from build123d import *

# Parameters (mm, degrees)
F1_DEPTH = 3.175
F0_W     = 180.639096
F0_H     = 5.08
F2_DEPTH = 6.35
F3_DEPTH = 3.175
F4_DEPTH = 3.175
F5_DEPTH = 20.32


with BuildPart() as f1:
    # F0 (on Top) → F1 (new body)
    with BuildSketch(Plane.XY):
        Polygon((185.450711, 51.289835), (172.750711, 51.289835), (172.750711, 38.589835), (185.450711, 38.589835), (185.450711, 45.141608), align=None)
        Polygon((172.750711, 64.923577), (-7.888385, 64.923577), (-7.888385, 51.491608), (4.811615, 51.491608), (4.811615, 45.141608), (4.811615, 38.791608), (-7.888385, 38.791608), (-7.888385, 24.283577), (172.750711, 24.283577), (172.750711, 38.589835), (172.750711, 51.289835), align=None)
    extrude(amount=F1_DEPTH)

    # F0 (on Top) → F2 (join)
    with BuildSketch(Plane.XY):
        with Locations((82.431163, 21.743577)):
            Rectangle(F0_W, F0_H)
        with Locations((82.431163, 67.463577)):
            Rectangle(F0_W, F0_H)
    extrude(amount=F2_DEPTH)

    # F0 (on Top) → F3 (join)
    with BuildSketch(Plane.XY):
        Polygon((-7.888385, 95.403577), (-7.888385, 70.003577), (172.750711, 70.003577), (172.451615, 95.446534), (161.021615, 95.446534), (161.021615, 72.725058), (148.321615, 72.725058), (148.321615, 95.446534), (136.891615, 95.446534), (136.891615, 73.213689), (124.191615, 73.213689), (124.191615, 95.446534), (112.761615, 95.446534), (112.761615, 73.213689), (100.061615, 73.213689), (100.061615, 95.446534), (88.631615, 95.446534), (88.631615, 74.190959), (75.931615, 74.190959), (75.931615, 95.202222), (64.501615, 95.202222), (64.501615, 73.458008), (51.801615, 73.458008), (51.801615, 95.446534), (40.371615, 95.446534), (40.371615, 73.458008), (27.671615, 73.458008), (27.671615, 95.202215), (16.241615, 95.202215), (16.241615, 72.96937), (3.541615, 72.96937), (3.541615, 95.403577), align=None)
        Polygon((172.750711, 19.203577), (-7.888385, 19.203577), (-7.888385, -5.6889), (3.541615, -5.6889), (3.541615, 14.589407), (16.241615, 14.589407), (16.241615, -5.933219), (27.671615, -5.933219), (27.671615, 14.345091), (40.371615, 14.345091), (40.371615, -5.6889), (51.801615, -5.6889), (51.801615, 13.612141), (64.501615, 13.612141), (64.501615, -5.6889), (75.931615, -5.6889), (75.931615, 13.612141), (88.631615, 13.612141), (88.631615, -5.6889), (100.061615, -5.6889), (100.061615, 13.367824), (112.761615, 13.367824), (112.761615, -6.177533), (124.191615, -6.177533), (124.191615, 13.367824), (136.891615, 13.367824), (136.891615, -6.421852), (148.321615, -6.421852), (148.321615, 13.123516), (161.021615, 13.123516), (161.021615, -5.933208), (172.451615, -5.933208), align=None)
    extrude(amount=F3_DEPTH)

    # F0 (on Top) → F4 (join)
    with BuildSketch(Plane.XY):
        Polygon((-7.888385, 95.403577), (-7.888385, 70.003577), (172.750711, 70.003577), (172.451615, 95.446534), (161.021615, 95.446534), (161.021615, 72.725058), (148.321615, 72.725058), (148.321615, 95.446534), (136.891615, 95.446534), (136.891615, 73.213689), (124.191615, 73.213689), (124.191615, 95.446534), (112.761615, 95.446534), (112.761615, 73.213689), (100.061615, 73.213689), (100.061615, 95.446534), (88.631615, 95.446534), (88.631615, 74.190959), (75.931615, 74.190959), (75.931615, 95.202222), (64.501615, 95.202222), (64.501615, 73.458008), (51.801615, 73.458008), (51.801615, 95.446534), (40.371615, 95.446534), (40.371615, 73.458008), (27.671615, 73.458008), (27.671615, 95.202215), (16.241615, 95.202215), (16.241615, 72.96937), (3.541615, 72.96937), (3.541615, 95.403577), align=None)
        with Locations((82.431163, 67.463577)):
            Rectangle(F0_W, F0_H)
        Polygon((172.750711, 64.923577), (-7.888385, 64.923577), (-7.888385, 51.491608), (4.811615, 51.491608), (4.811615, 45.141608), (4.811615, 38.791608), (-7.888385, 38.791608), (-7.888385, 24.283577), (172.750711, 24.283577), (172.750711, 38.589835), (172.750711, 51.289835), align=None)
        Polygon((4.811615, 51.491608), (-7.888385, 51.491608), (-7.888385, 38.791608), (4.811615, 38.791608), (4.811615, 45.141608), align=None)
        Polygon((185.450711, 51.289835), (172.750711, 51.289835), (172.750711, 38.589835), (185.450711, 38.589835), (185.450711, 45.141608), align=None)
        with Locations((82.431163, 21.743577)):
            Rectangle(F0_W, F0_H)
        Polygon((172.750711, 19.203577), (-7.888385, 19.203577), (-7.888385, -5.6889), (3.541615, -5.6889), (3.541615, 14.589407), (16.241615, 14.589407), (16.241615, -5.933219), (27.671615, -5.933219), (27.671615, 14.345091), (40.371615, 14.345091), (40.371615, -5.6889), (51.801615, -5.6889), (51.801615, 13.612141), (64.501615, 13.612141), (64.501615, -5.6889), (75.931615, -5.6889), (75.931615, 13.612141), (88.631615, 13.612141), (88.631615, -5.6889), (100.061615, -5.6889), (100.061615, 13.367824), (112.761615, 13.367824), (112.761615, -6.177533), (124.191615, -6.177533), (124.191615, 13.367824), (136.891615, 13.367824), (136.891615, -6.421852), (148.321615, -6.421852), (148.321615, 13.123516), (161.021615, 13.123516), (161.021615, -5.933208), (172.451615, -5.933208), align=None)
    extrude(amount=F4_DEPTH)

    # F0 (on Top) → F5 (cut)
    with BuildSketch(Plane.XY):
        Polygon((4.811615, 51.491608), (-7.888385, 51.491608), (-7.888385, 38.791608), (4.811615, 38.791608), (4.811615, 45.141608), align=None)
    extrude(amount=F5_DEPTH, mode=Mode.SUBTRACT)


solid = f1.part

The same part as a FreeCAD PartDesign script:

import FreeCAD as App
import Part
import Sketcher
from FreeCAD import Vector
Q = App.Units.Quantity


def add_polygon(sketch, points):
    """Adds a closed chain of lines whose ends are joined by coincident constraints."""
    first, n = sketch.GeometryCount, len(points)
    for a, b in zip(points, points[1:] + points[:1]):
        sketch.addGeometry(Part.LineSegment(App.Vector(*a, 0), App.Vector(*b, 0)), False)
    for i in range(n):
        sketch.addConstraint(Sketcher.Constraint("Coincident", first + i, 2, first + (i + 1) % n, 1))

doc = App.newDocument("Part")
body = doc.addObject("PartDesign::Body", "Body")

sketch1 = doc.addObject("Sketcher::SketchObject", "Sketch")
body.addObject(sketch1)
sketch1.AttachmentSupport = (doc.XY_Plane, [""])
sketch1.MapMode = "FlatFace"
add_polygon(sketch1, [(185, 51), (173, 51), (173, 65), (-8, 65), (-8, 51), (5, 51), (5, 39), (-8, 39), (-8, 24), (173, 24), (173, 39), (185, 39)])
sketch1.addConstraint([
    Sketcher.Constraint("Horizontal", 0),
    Sketcher.Constraint("Vertical", 1),
    Sketcher.Constraint("Horizontal", 2),
    Sketcher.Constraint("Vertical", 3),
    Sketcher.Constraint("Horizontal", 4),
    Sketcher.Constraint("Vertical", 5),
    Sketcher.Constraint("Horizontal", 6),
    Sketcher.Constraint("Vertical", 7),
    Sketcher.Constraint("Horizontal", 8),
    Sketcher.Constraint("Vertical", 9),
    Sketcher.Constraint("Horizontal", 10),
    Sketcher.Constraint("Vertical", 11),
    Sketcher.Constraint("Vertical", 3, 2, 6, 2),
    Sketcher.Constraint("Vertical", 1, 2, 8, 2),
    Sketcher.Constraint("Equal", 0, 4),
    Sketcher.Constraint("Equal", 10, 5),
    Sketcher.Constraint("Equal", 5, 11),
    Sketcher.Constraint("DistanceX", 0, 2, 0, 1, Q("0.5 in")),
    Sketcher.Constraint("DistanceY", 7, 2, 2, 2, Q("1.6 in")),
    Sketcher.Constraint("DistanceY", 1, 1, 1, 2, 13.633742),
    Sketcher.Constraint("DistanceY", 3, 2, 3, 1, 13.431969),
    Sketcher.Constraint("DistanceX", 2, 2, 2, 1, 180.639096),
    Sketcher.Constraint("DistanceX", -1, 1, 0, 2, 172.750711),
    Sketcher.Constraint("DistanceY", -1, 1, 0, 2, 51.289835),
])
pad1 = doc.addObject("PartDesign::Pad", "Pad")
body.addObject(pad1)
pad1.Profile = sketch1
pad1.Length = Q("0.125 in")

sketch2 = doc.addObject("Sketcher::SketchObject", "Sketch001")
body.addObject(sketch2)
sketch2.AttachmentSupport = (doc.XY_Plane, [""])
sketch2.MapMode = "FlatFace"
add_polygon(sketch2, [(-8, 24), (-8, 19), (173, 19), (173, 24)])
add_polygon(sketch2, [(-8, 70), (-8, 65), (173, 65), (173, 70)])
sketch2.addConstraint([
    Sketcher.Constraint("Vertical", 0),
    Sketcher.Constraint("Horizontal", 1),
    Sketcher.Constraint("Vertical", 2),
    Sketcher.Constraint("Horizontal", 3),
    Sketcher.Constraint("Vertical", 4),
    Sketcher.Constraint("Horizontal", 5),
    Sketcher.Constraint("Vertical", 6),
    Sketcher.Constraint("Horizontal", 7),
    Sketcher.Constraint("Vertical", 3, 2, 4, 2),
    Sketcher.Constraint("Vertical", 2, 2, 5, 2),
    Sketcher.Constraint("Equal", 2, 4),
    Sketcher.Constraint("DistanceY", 0, 2, 0, 1, Q("0.2 in")),
    Sketcher.Constraint("DistanceY", 1, 2, 6, 2, Q("2 in")),
    Sketcher.Constraint("DistanceX", 1, 1, 1, 2, 180.639096),
    Sketcher.Constraint("DistanceX", -1, 1, 1, 2, 172.750711),
    Sketcher.Constraint("DistanceY", -1, 1, 0, 2, 19.203577),
])
pad2 = doc.addObject("PartDesign::Pad", "Pad001")
body.addObject(pad2)
pad2.Profile = sketch2
pad2.Length = Q("0.25 in")

sketch3 = doc.addObject("Sketcher::SketchObject", "Sketch002")
body.addObject(sketch3)
sketch3.AttachmentSupport = (doc.XY_Plane, [""])
sketch3.MapMode = "FlatFace"
add_polygon(sketch3, [(-8, 95), (-8, 70), (173, 70), (172, 95), (161, 95), (161, 73), (148, 73), (148, 95), (137, 95), (137, 73), (124, 73), (124, 95), (113, 95), (113, 73), (100, 73), (100, 95), (89, 95), (89, 74), (76, 74), (76, 95), (65, 95), (65, 73), (52, 73), (52, 95), (40, 95), (40, 73), (28, 73), (28, 95), (16, 95), (16, 73), (4, 73), (4, 95)])
add_polygon(sketch3, [(173, 19), (-8, 19), (-8, -6), (4, -6), (4, 15), (16, 15), (16, -6), (28, -6), (28, 14), (40, 14), (40, -6), (52, -6), (52, 14), (65, 14), (65, -6), (76, -6), (76, 14), (89, 14), (89, -6), (100, -6), (100, 13), (113, 13), (113, -6), (124, -6), (124, 13), (137, 13), (137, -6), (148, -6), (148, 13), (161, 13), (161, -6), (172, -6)])
sketch3.addConstraint([
    Sketcher.Constraint("Vertical", 0),
    Sketcher.Constraint("Horizontal", 1),
    Sketcher.Constraint("Horizontal", 3),
    Sketcher.Constraint("Vertical", 4),
    Sketcher.Constraint("Horizontal", 5),
    Sketcher.Constraint("Vertical", 6),
    Sketcher.Constraint("Horizontal", 7),
    Sketcher.Constraint("Vertical", 8),
    Sketcher.Constraint("Horizontal", 9),
    Sketcher.Constraint("Vertical", 10),
    Sketcher.Constraint("Horizontal", 11),
    Sketcher.Constraint("Vertical", 12),
    Sketcher.Constraint("Horizontal", 13),
    Sketcher.Constraint("Vertical", 14),
    Sketcher.Constraint("Horizontal", 15),
    Sketcher.Constraint("Vertical", 16),
    Sketcher.Constraint("Horizontal", 17),
    Sketcher.Constraint("Vertical", 18),
    Sketcher.Constraint("Horizontal", 19),
    Sketcher.Constraint("Vertical", 20),
    Sketcher.Constraint("Horizontal", 21),
    Sketcher.Constraint("Vertical", 22),
    Sketcher.Constraint("Horizontal", 23),
    Sketcher.Constraint("Vertical", 24),
    Sketcher.Constraint("Horizontal", 25),
    Sketcher.Constraint("Vertical", 26),
    Sketcher.Constraint("Horizontal", 27),
    Sketcher.Constraint("Vertical", 28),
    Sketcher.Constraint("Horizontal", 29),
    Sketcher.Constraint("Vertical", 30),
    Sketcher.Constraint("Horizontal", 31),
    Sketcher.Constraint("Horizontal", 32),
    Sketcher.Constraint("Vertical", 33),
    Sketcher.Constraint("Horizontal", 34),
    Sketcher.Constraint("Vertical", 35),
    Sketcher.Constraint("Horizontal", 36),
    Sketcher.Constraint("Vertical", 37),
    Sketcher.Constraint("Horizontal", 38),
    Sketcher.Constraint("Vertical", 39),
    Sketcher.Constraint("Horizontal", 40),
    Sketcher.Constraint("Vertical", 41),
    Sketcher.Constraint("Horizontal", 42),
    Sketcher.Constraint("Vertical", 43),
    Sketcher.Constraint("Horizontal", 44),
    Sketcher.Constraint("Vertical", 45),
    Sketcher.Constraint("Horizontal", 46),
    Sketcher.Constraint("Vertical", 47),
    Sketcher.Constraint("Horizontal", 48),
    Sketcher.Constraint("Vertical", 49),
    Sketcher.Constraint("Horizontal", 50),
    Sketcher.Constraint("Vertical", 51),
    Sketcher.Constraint("Horizontal", 52),
    Sketcher.Constraint("Vertical", 53),
    Sketcher.Constraint("Horizontal", 54),
    Sketcher.Constraint("Vertical", 55),
    Sketcher.Constraint("Horizontal", 56),
    Sketcher.Constraint("Vertical", 57),
    Sketcher.Constraint("Horizontal", 58),
    Sketcher.Constraint("Vertical", 59),
    Sketcher.Constraint("Horizontal", 60),
    Sketcher.Constraint("Vertical", 61),
    Sketcher.Constraint("Horizontal", 62),
    Sketcher.Constraint("Horizontal", 3, 2, 6, 2),
    Sketcher.Constraint("Horizontal", 7, 2, 10, 2),
    Sketcher.Constraint("Horizontal", 9, 2, 12, 2),
    Sketcher.Constraint("Horizontal", 11, 2, 14, 2),
    Sketcher.Constraint("Horizontal", 15, 2, 22, 2),
    Sketcher.Constraint("Horizontal", 21, 2, 24, 2),
    Sketcher.Constraint("Horizontal", 34, 2, 41, 2),
    Sketcher.Constraint("Horizontal", 42, 2, 45, 2),
    Sketcher.Constraint("Horizontal", 44, 2, 47, 2),
    Sketcher.Constraint("Horizontal", 46, 2, 49, 2),
    Sketcher.Constraint("Horizontal", 52, 2, 55, 2),
    Sketcher.Constraint("Vertical", 31, 2, 32, 2),
    Sketcher.Constraint("Vertical", 30, 2, 34, 2),
    Sketcher.Constraint("Vertical", 28, 2, 36, 2),
    Sketcher.Constraint("Vertical", 26, 2, 38, 2),
    Sketcher.Constraint("Vertical", 24, 2, 40, 2),
    Sketcher.Constraint("Vertical", 22, 2, 42, 2),
    Sketcher.Constraint("Vertical", 20, 2, 44, 2),
    Sketcher.Constraint("Vertical", 18, 2, 46, 2),
    Sketcher.Constraint("Vertical", 16, 2, 48, 2),
    Sketcher.Constraint("Vertical", 14, 2, 50, 2),
    Sketcher.Constraint("Vertical", 12, 2, 52, 2),
    Sketcher.Constraint("Vertical", 10, 2, 54, 2),
    Sketcher.Constraint("Vertical", 8, 2, 56, 2),
    Sketcher.Constraint("Vertical", 6, 2, 58, 2),
    Sketcher.Constraint("Vertical", 4, 2, 60, 2),
    Sketcher.Constraint("Vertical", 2, 2, 62, 2),
    Sketcher.Constraint("Vertical", 1, 2, 63, 2),
    Sketcher.Constraint("Equal", 3, 7),
    Sketcher.Constraint("Equal", 5, 9),
    Sketcher.Constraint("Equal", 7, 11),
    Sketcher.Constraint("Equal", 9, 13),
    Sketcher.Constraint("Equal", 11, 15),
    Sketcher.Constraint("Equal", 13, 17),
    Sketcher.Constraint("Equal", 15, 19),
    Sketcher.Constraint("Equal", 17, 21),
    Sketcher.Constraint("Equal", 19, 23),
    Sketcher.Constraint("Equal", 21, 25),
    Sketcher.Constraint("Equal", 23, 27),
    Sketcher.Constraint("Equal", 25, 29),
    Sketcher.Constraint("Equal", 27, 31),
    Sketcher.Constraint("Equal", 14, 28),
    Sketcher.Constraint("Equal", 51, 61),
    Sketcher.Constraint("DistanceY", 0, 2, 0, 1, Q("1 in")),
    Sketcher.Constraint("DistanceX", 5, 2, 5, 1, Q("0.5 in")),
    Sketcher.Constraint("DistanceX", 3, 2, 3, 1, Q("0.45 in")),
    Sketcher.Constraint("DistanceY", 39, 1, 39, 2, 20.27831),
    Sketcher.Constraint("DistanceY", 41, 2, 41, 1, 20.033991),
    Sketcher.Constraint("DistanceY", 43, 1, 43, 2, 19.301041),
    Sketcher.Constraint("DistanceY", 59, 1, 59, 2, 19.545368),
    Sketcher.Constraint("DistanceY", 33, 2, -1, 1, 5.6889),
    Sketcher.Constraint("DistanceX", 1, 1, 1, 2, 180.639096),
    Sketcher.Constraint("DistanceY", 4, 2, 4, 1, 22.721476),
    Sketcher.Constraint("DistanceY", 8, 2, 8, 1, 22.232845),
    Sketcher.Constraint("DistanceY", 16, 2, 16, 1, 21.255575),
    Sketcher.Constraint("DistanceY", 18, 1, 18, 2, 21.011263),
    Sketcher.Constraint("DistanceY", 20, 2, 20, 1, 21.744214),
    Sketcher.Constraint("DistanceY", 26, 1, 26, 2, 21.744207),
    Sketcher.Constraint("DistanceY", 30, 1, 30, 2, 22.434207),
    Sketcher.Constraint("DistanceY", 33, 2, 33, 1, 24.892477),
    Sketcher.Constraint("DistanceY", 35, 1, 35, 2, 20.278307),
    Sketcher.Constraint("DistanceY", 51, 1, 51, 2, 19.056724),
    Sketcher.Constraint("DistanceY", 53, 2, 53, 1, 19.545357),
    Sketcher.Constraint("DistanceY", 57, 2, 57, 1, 19.789676),
    Sketcher.Constraint("DistanceX", -1, 1, 1, 2, 172.750711),
    Sketcher.Constraint("DistanceY", -1, 1, 4, 2, 72.725058),
])
pad3 = doc.addObject("PartDesign::Pad", "Pad002")
body.addObject(pad3)
pad3.Profile = sketch3
pad3.Length = Q("0.125 in")

sketch4 = doc.addObject("Sketcher::SketchObject", "Sketch003")
body.addObject(sketch4)
sketch4.AttachmentSupport = (doc.XY_Plane, [""])
sketch4.MapMode = "FlatFace"
add_polygon(sketch4, [(-8, 95), (-8, -6), (4, -6), (4, 15), (16, 15), (16, -6), (28, -6), (28, 14), (40, 14), (40, -6), (52, -6), (52, 14), (65, 14), (65, -6), (76, -6), (76, 14), (89, 14), (89, -6), (100, -6), (100, 13), (113, 13), (113, -6), (124, -6), (124, 13), (137, 13), (137, -6), (148, -6), (148, 13), (161, 13), (161, -6), (172, -6), (173, 19), (173, 39), (185, 39), (185, 51), (173, 51), (173, 70), (172, 95), (161, 95), (161, 73), (148, 73), (148, 95), (137, 95), (137, 73), (124, 73), (124, 95), (113, 95), (113, 73), (100, 73), (100, 95), (89, 95), (89, 74), (76, 74), (76, 95), (65, 95), (65, 73), (52, 73), (52, 95), (40, 95), (40, 73), (28, 73), (28, 95), (16, 95), (16, 73), (4, 73), (4, 95)])
sketch4.addConstraint([
    Sketcher.Constraint("Vertical", 0),
    Sketcher.Constraint("Horizontal", 1),
    Sketcher.Constraint("Vertical", 2),
    Sketcher.Constraint("Horizontal", 3),
    Sketcher.Constraint("Vertical", 4),
    Sketcher.Constraint("Horizontal", 5),
    Sketcher.Constraint("Vertical", 6),
    Sketcher.Constraint("Horizontal", 7),
    Sketcher.Constraint("Vertical", 8),
    Sketcher.Constraint("Horizontal", 9),
    Sketcher.Constraint("Vertical", 10),
    Sketcher.Constraint("Horizontal", 11),
    Sketcher.Constraint("Vertical", 12),
    Sketcher.Constraint("Horizontal", 13),
    Sketcher.Constraint("Vertical", 14),
    Sketcher.Constraint("Horizontal", 15),
    Sketcher.Constraint("Vertical", 16),
    Sketcher.Constraint("Horizontal", 17),
    Sketcher.Constraint("Vertical", 18),
    Sketcher.Constraint("Horizontal", 19),
    Sketcher.Constraint("Vertical", 20),
    Sketcher.Constraint("Horizontal", 21),
    Sketcher.Constraint("Vertical", 22),
    Sketcher.Constraint("Horizontal", 23),
    Sketcher.Constraint("Vertical", 24),
    Sketcher.Constraint("Horizontal", 25),
    Sketcher.Constraint("Vertical", 26),
    Sketcher.Constraint("Horizontal", 27),
    Sketcher.Constraint("Vertical", 28),
    Sketcher.Constraint("Horizontal", 29),
    Sketcher.Constraint("Vertical", 31),
    Sketcher.Constraint("Horizontal", 32),
    Sketcher.Constraint("Vertical", 33),
    Sketcher.Constraint("Horizontal", 34),
    Sketcher.Constraint("Vertical", 35),
    Sketcher.Constraint("Horizontal", 37),
    Sketcher.Constraint("Vertical", 38),
    Sketcher.Constraint("Horizontal", 39),
    Sketcher.Constraint("Vertical", 40),
    Sketcher.Constraint("Horizontal", 41),
    Sketcher.Constraint("Vertical", 42),
    Sketcher.Constraint("Horizontal", 43),
    Sketcher.Constraint("Vertical", 44),
    Sketcher.Constraint("Horizontal", 45),
    Sketcher.Constraint("Vertical", 46),
    Sketcher.Constraint("Horizontal", 47),
    Sketcher.Constraint("Vertical", 48),
    Sketcher.Constraint("Horizontal", 49),
    Sketcher.Constraint("Vertical", 50),
    Sketcher.Constraint("Horizontal", 51),
    Sketcher.Constraint("Vertical", 52),
    Sketcher.Constraint("Horizontal", 53),
    Sketcher.Constraint("Vertical", 54),
    Sketcher.Constraint("Horizontal", 55),
    Sketcher.Constraint("Vertical", 56),
    Sketcher.Constraint("Horizontal", 57),
    Sketcher.Constraint("Vertical", 58),
    Sketcher.Constraint("Horizontal", 59),
    Sketcher.Constraint("Vertical", 60),
    Sketcher.Constraint("Horizontal", 61),
    Sketcher.Constraint("Vertical", 62),
    Sketcher.Constraint("Horizontal", 63),
    Sketcher.Constraint("Vertical", 64),
    Sketcher.Constraint("Horizontal", 65),
    Sketcher.Constraint("Horizontal", 1, 2, 8, 2),
    Sketcher.Constraint("Horizontal", 9, 2, 12, 2),
    Sketcher.Constraint("Horizontal", 11, 2, 14, 2),
    Sketcher.Constraint("Horizontal", 13, 2, 16, 2),
    Sketcher.Constraint("Horizontal", 19, 2, 22, 2),
    Sketcher.Constraint("Horizontal", 37, 2, 40, 2),
    Sketcher.Constraint("Horizontal", 41, 2, 44, 2),
    Sketcher.Constraint("Horizontal", 43, 2, 46, 2),
    Sketcher.Constraint("Horizontal", 45, 2, 48, 2),
    Sketcher.Constraint("Horizontal", 49, 2, 56, 2),
    Sketcher.Constraint("Horizontal", 55, 2, 58, 2),
    Sketcher.Constraint("Vertical", 31, 2, 34, 2),
    Sketcher.Constraint("Vertical", 29, 2, 36, 2),
    Sketcher.Constraint("Vertical", 28, 2, 37, 2),
    Sketcher.Constraint("Vertical", 26, 2, 39, 2),
    Sketcher.Constraint("Vertical", 24, 2, 41, 2),
    Sketcher.Constraint("Vertical", 22, 2, 43, 2),
    Sketcher.Constraint("Vertical", 20, 2, 45, 2),
    Sketcher.Constraint("Vertical", 18, 2, 47, 2),
    Sketcher.Constraint("Vertical", 16, 2, 49, 2),
    Sketcher.Constraint("Vertical", 14, 2, 51, 2),
    Sketcher.Constraint("Vertical", 12, 2, 53, 2),
    Sketcher.Constraint("Vertical", 10, 2, 55, 2),
    Sketcher.Constraint("Vertical", 8, 2, 57, 2),
    Sketcher.Constraint("Vertical", 6, 2, 59, 2),
    Sketcher.Constraint("Vertical", 4, 2, 61, 2),
    Sketcher.Constraint("Vertical", 2, 2, 63, 2),
    Sketcher.Constraint("Equal", 1, 5),
    Sketcher.Constraint("Equal", 3, 7),
    Sketcher.Constraint("Equal", 5, 9),
    Sketcher.Constraint("Equal", 7, 11),
    Sketcher.Constraint("Equal", 9, 13),
    Sketcher.Constraint("Equal", 11, 15),
    Sketcher.Constraint("Equal", 13, 17),
    Sketcher.Constraint("Equal", 15, 19),
    Sketcher.Constraint("Equal", 17, 21),
    Sketcher.Constraint("Equal", 19, 23),
    Sketcher.Constraint("Equal", 21, 25),
    Sketcher.Constraint("Equal", 23, 27),
    Sketcher.Constraint("Equal", 25, 29),
    Sketcher.Constraint("Equal", 27, 32),
    Sketcher.Constraint("Equal", 18, 28),
    Sketcher.Constraint("Equal", 63, 33),
    Sketcher.Constraint("Equal", 48, 62),
    Sketcher.Constraint("DistanceX", 3, 1, 3, 2, Q("0.5 in")),
    Sketcher.Constraint("DistanceX", 1, 1, 1, 2, Q("0.45 in")),
    Sketcher.Constraint("DistanceY", 6, 1, 6, 2, 20.27831),
    Sketcher.Constraint("DistanceY", 8, 2, 8, 1, 20.033991),
    Sketcher.Constraint("DistanceY", 10, 1, 10, 2, 19.301041),
    Sketcher.Constraint("DistanceY", 26, 1, 26, 2, 19.545368),
    Sketcher.Constraint("DistanceY", 31, 1, 31, 2, 19.386258),
    Sketcher.Constraint("DistanceY", 0, 2, -1, 1, 5.6889),
    Sketcher.Constraint("DistanceY", 0, 2, 0, 1, 101.092477),
    Sketcher.Constraint("DistanceY", 2, 1, 2, 2, 20.278307),
    Sketcher.Constraint("DistanceY", 18, 1, 18, 2, 19.056724),
    Sketcher.Constraint("DistanceY", 20, 2, 20, 1, 19.545357),
    Sketcher.Constraint("DistanceY", 24, 2, 24, 1, 19.789676),
    Sketcher.Constraint("DistanceY", 35, 1, 35, 2, 18.713742),
    Sketcher.Constraint("DistanceY", 38, 2, 38, 1, 22.721476),
    Sketcher.Constraint("DistanceY", 42, 2, 42, 1, 22.232845),
    Sketcher.Constraint("DistanceY", 50, 2, 50, 1, 21.255575),
    Sketcher.Constraint("DistanceY", 52, 1, 52, 2, 21.011263),
    Sketcher.Constraint("DistanceY", 54, 2, 54, 1, 21.744214),
    Sketcher.Constraint("DistanceY", 60, 1, 60, 2, 21.744207),
    Sketcher.Constraint("DistanceY", 64, 1, 64, 2, 22.434207),
    Sketcher.Constraint("DistanceX", -1, 1, 30, 2, 172.750711),
    Sketcher.Constraint("Distance", 30, 25.138564),
    Sketcher.Constraint("DistanceX", 0, 2, -1, 1, 7.888385),
])
pad4 = doc.addObject("PartDesign::Pad", "Pad003")
body.addObject(pad4)
pad4.Profile = sketch4
pad4.Length = Q("0.125 in")

sketch5 = doc.addObject("Sketcher::SketchObject", "Sketch004")
body.addObject(sketch5)
sketch5.AttachmentSupport = (doc.XY_Plane, [""])
sketch5.MapMode = "FlatFace"
add_polygon(sketch5, [(5, 51), (-8, 51), (-8, 39), (5, 39)])
sketch5.addConstraint([
    Sketcher.Constraint("Horizontal", 0),
    Sketcher.Constraint("Vertical", 1),
    Sketcher.Constraint("Horizontal", 2),
    Sketcher.Constraint("Vertical", 3),
    Sketcher.Constraint("Equal", 2, 1),
    Sketcher.Constraint("DistanceX", 0, 2, 0, 1, Q("0.5 in")),
    Sketcher.Constraint("DistanceX", 0, 2, -1, 1, 7.888385),
    Sketcher.Constraint("DistanceY", -1, 1, 0, 2, 51.491608),
])
pocket1 = doc.addObject("PartDesign::Pocket", "Pocket")
body.addObject(pocket1)
pocket1.Profile = sketch5
pocket1.Length = Q("0.8 in")
pocket1.Reversed = True

doc.recompute()
